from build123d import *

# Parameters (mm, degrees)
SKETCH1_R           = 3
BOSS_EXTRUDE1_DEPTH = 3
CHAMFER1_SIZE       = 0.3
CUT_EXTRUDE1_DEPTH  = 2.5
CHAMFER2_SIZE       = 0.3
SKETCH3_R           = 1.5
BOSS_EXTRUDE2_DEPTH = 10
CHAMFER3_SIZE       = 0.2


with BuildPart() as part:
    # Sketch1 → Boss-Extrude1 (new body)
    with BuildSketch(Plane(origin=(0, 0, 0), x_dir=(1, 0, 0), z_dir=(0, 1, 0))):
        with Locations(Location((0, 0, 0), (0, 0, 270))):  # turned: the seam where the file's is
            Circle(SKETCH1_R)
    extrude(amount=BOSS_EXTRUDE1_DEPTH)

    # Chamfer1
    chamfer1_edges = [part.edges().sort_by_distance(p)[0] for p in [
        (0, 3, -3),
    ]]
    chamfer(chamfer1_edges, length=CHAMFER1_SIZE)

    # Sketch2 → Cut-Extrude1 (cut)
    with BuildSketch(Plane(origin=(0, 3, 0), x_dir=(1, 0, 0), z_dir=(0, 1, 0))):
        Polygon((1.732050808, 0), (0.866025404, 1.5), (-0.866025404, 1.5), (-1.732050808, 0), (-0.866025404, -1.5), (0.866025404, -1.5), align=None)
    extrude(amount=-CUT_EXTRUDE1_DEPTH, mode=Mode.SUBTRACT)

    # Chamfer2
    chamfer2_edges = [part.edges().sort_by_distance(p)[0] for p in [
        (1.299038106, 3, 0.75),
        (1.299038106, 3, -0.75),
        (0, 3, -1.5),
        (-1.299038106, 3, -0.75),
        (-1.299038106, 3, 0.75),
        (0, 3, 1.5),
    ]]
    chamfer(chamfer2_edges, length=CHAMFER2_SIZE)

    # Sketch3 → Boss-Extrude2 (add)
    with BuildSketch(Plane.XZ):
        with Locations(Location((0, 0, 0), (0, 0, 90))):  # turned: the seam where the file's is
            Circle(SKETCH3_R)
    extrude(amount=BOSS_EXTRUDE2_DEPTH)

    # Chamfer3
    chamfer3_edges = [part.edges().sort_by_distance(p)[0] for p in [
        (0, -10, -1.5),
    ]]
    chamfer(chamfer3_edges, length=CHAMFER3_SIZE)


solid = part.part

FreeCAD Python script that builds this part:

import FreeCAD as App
import Part
import Sketcher
Q = App.Units.Quantity


def edges_at(feature, points):
    """Names of the edges that pass closest to the given points."""
    edges = feature.Shape.Edges
    near = lambda p: min(range(len(edges)), key=lambda i: edges[i].distToShape(Part.Vertex(*p))[0])
    return sorted({f"Edge{near(p) + 1}" for p in points})


def add_polygon(sketch, points):
    """Adds a closed chain of lines whose ends are joined by coincident constraints."""
    first, n = sketch.GeometryCount, len(points)
    for a, b in zip(points, points[1:] + points[:1]):
        sketch.addGeometry(Part.LineSegment(App.Vector(*a, 0), App.Vector(*b, 0)), False)
    for i in range(n):
        sketch.addConstraint(Sketcher.Constraint("Coincident", first + i, 2, first + (i + 1) % n, 1))

doc = App.newDocument("Part")
body = doc.addObject("PartDesign::Body", "Body")

# Sketch on XZ plane
sketch1 = body.newObject("Sketcher::SketchObject", "Sketch")
sketch1.AttachmentSupport = (doc.getObject("XZ_Plane"), [""])
sketch1.MapMode = "FlatFace"
sketch1.addGeometry(Part.Circle(App.Vector(0, 0, 0), App.Vector(0, 0, 1), 3), False)
sketch1.addConstraint([
    Sketcher.Constraint("Coincident", 0, 3, -1, 1),
    Sketcher.Constraint("Diameter", 0, Q("6 mm")),
])
pad1 = body.newObject("PartDesign::Pad", "Pad")
pad1.Profile = sketch1
pad1.Length = 3
pad1.Reversed = True
doc.recompute()

chamfer = body.newObject("PartDesign::Chamfer", "Chamfer")
chamfer.Base = (pad1, edges_at(pad1, [(0, 3, -3)]))
chamfer.Size = 0.3

# Sketch on XZ plane
sketch2 = body.newObject("Sketcher::SketchObject", "Sketch001")
sketch2.AttachmentSupport = (doc.getObject("XZ_Plane"), [""])
sketch2.MapMode = "FlatFace"
sketch2.AttachmentOffset = App.Placement(App.Vector(0, 0, -3), App.Rotation())
add_polygon(sketch2, [(1.7, 0), (0.9, -1.5), (-0.9, -1.5), (-1.7, 0), (-0.9, 1.5), (0.9, 1.5)])  # lines 0-5
sketch2.addConstraint([
    Sketcher.Constraint("Horizontal", 1),
    Sketcher.Constraint("Horizontal", 4),
    Sketcher.Constraint("Symmetric", 0, 2, 3, 2, -1, 1),
    Sketcher.Constraint("Symmetric", 2, 2, 5, 2, -1, 1),
    Sketcher.Constraint("PointOnObject", 2, 2, -1),
    Sketcher.Constraint("Parallel", 2, 5),
    Sketcher.Constraint("Vertical", 1, 2, 3, 2),
    Sketcher.Constraint("Angle", 0, Q("-120 deg")),
    Sketcher.Constraint("DistanceY", 1, 2, 3, 2, Q("3 mm")),
    Sketcher.Constraint("DistanceX", 1, 2, 1, 1, Q("1.732051 mm")),
])
pocket1 = body.newObject("PartDesign::Pocket", "Pocket")
pocket1.Profile = sketch2
pocket1.Length = 2.5
pocket1.Reversed = True
doc.recompute()

chamfer2 = body.newObject("PartDesign::Chamfer", "Chamfer001")
chamfer2.Base = (pocket1, edges_at(pocket1, [
    (1.299, 3, 0.75),
    (1.299, 3, -0.75),
    (0, 3, -1.5),
    (-1.299, 3, -0.75),
    (-1.299, 3, 0.75),
    (0, 3, 1.5),
]))
chamfer2.Size = 0.3

# Sketch on XZ plane
sketch3 = body.newObject("Sketcher::SketchObject", "Sketch002")
sketch3.AttachmentSupport = (doc.getObject("XZ_Plane"), [""])
sketch3.MapMode = "FlatFace"
sketch3.addGeometry(Part.Circle(App.Vector(0, 0, 0), App.Vector(0, 0, 1), 1.5), False)
sketch3.addConstraint([
    Sketcher.Constraint("Coincident", 0, 3, -1, 1),
    Sketcher.Constraint("Diameter", 0, Q("3 mm")),
])
pad2 = body.newObject("PartDesign::Pad", "Pad001")
pad2.Profile = sketch3
pad2.Length = 10
doc.recompute()

chamfer3 = body.newObject("PartDesign::Chamfer", "Chamfer002")
chamfer3.Base = (pad2, edges_at(pad2, [(0, -10, -1.5)]))
chamfer3.Size = 0.2

doc.recompute()
